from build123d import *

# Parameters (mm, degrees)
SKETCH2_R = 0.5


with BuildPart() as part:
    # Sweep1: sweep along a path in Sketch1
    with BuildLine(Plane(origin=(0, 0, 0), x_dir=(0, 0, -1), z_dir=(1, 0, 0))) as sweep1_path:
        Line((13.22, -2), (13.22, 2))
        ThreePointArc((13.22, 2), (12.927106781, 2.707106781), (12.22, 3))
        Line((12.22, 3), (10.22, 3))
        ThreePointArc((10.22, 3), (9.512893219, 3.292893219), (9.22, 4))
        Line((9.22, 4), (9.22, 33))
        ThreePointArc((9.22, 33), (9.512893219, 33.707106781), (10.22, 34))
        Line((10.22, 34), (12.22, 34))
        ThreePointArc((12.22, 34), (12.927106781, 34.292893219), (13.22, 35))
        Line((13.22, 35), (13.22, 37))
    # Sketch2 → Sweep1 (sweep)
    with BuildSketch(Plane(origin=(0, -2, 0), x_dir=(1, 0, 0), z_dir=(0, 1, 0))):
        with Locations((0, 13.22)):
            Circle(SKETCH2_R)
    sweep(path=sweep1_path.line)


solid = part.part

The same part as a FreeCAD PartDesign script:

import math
import FreeCAD as App
import Part
import Sketcher

V = App.Vector

doc = App.newDocument("Part")
body = doc.addObject("PartDesign::Body", "Body")

# Sketch on XZ plane
sketch1 = doc.addObject("Sketcher::SketchObject", "Sketch")
body.addObject(sketch1)
sketch1.AttachmentSupport = (doc.XZ_Plane, [""])
sketch1.MapMode = "FlatFace"
sketch1.AttachmentOffset = App.Placement(V(0, 0, 2), App.Rotation())
sketch1.addGeometry(Part.Circle(V(0, -13.2, 0), V(0, 0, 1), 0.5), False)
sketch1.addConstraint([
    Sketcher.Constraint("PointOnObject", 0, 3, -2),
    Sketcher.Constraint("Diameter", 0, 1.0),
    Sketcher.Constraint("DistanceY", 0, 3, -1, 1, 13.22),
])

# Sketch on YZ plane
sketch2 = doc.addObject("Sketcher::SketchObject", "Sketch001")
body.addObject(sketch2)
sketch2.AttachmentSupport = (doc.YZ_Plane, [""])
sketch2.MapMode = "FlatFace"
sketch2.addGeometry([
    Part.LineSegment(V(-2, -13.2, 0), V(2, -13.2, 0)),  # 0
    Part.ArcOfCircle(Part.Circle(V(2, -12.2, 0), V(0, 0, 1), 1), math.radians(-90), math.radians(0)),  # 1
    Part.LineSegment(V(3, -12.2, 0), V(3, -10.2, 0)),  # 2
    Part.ArcOfCircle(Part.Circle(V(4, -10.2, 0), V(0, 0, 1), 1), math.radians(90), math.radians(180)),  # 3
    Part.LineSegment(V(4, -9.2, 0), V(33, -9.2, 0)),  # 4
    Part.ArcOfCircle(Part.Circle(V(33, -10.2, 0), V(0, 0, 1), 1), math.radians(0), math.radians(90)),  # 5
    Part.LineSegment(V(34, -10.2, 0), V(34, -12.2, 0)),  # 6
    Part.ArcOfCircle(Part.Circle(V(35, -12.2, 0), V(0, 0, 1), 1), math.radians(-180), math.radians(-90)),  # 7
    Part.LineSegment(V(35, -13.2, 0), V(37, -13.2, 0)),  # 8
], False)
sketch2.addConstraint([
    Sketcher.Constraint("Tangent", 0, 2, 1, 1),
    Sketcher.Constraint("Tangent", 1, 2, 2, 1),
    Sketcher.Constraint("Tangent", 2, 2, 3, 2),
    Sketcher.Constraint("Tangent", 3, 1, 4, 1),
    Sketcher.Constraint("Tangent", 4, 2, 5, 2),
    Sketcher.Constraint("Tangent", 5, 1, 6, 1),
    Sketcher.Constraint("Tangent", 6, 2, 7, 1),
    Sketcher.Constraint("Tangent", 7, 2, 8, 1),
    Sketcher.Constraint("Horizontal", 0),
    Sketcher.Constraint("Vertical", 2),
    Sketcher.Constraint("Horizontal", 4),
    Sketcher.Constraint("Vertical", 6),
    Sketcher.Constraint("Horizontal", 8),
    Sketcher.Constraint("Equal", 1, 3),
    Sketcher.Constraint("Equal", 3, 5),
    Sketcher.Constraint("Equal", 5, 7),
    Sketcher.Constraint("Horizontal", 1, 3, 7, 3),
    Sketcher.Constraint("Equal", 8, 2),
    Sketcher.Constraint("Radius", 1, 1.0),
    Sketcher.Constraint("DistanceX", 0, 1, 0, 2, 4.0),
    Sketcher.Constraint("DistanceX", 4, 1, 4, 2, 29.0),
    Sketcher.Constraint("DistanceX", 8, 1, 8, 2, 2.0),
    Sketcher.Constraint("DistanceX", -1, 1, 1, 3, 2.0),
    Sketcher.Constraint("DistanceY", 1, 3, -1, 1, 12.22),
])
doc.recompute()

additivepipe = doc.addObject("PartDesign::AdditivePipe", "AdditivePipe")
body.addObject(additivepipe)
additivepipe.Profile = sketch1
additivepipe.Spine = (sketch2, ["Edge1", "Edge2", "Edge3", "Edge4", "Edge5", "Edge6", "Edge7", "Edge8", "Edge9"])

doc.recompute()
